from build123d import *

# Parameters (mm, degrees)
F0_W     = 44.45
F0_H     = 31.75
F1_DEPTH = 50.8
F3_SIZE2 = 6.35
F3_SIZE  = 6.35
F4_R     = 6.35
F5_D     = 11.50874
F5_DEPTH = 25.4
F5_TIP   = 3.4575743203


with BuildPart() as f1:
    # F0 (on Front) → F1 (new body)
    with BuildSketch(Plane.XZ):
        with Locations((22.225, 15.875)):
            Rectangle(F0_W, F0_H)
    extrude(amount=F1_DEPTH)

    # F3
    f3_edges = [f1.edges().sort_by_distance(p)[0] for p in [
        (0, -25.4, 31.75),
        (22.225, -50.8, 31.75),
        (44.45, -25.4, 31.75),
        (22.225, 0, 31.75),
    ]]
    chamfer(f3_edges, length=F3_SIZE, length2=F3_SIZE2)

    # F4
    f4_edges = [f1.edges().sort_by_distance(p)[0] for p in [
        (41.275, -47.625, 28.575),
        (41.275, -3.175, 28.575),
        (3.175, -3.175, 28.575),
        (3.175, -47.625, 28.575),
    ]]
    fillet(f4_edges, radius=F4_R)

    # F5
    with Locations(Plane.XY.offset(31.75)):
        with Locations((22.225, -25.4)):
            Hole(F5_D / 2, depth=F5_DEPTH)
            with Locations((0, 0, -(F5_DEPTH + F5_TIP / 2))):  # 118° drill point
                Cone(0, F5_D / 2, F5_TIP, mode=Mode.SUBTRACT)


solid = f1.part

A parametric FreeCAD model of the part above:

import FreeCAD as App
import Part
import Sketcher
from FreeCAD import Vector
Q = App.Units.Quantity


def edges_at(feature, points):
    """Names of the edges that pass closest to the given points."""
    edges = feature.Shape.Edges
    near = lambda p: min(range(len(edges)), key=lambda i: edges[i].distToShape(Part.Vertex(*p))[0])
    return sorted({f"Edge{near(p) + 1}" for p in points})

doc = App.newDocument("Part")
body = doc.addObject("PartDesign::Body", "Body")

sketch1 = body.newObject("Sketcher::SketchObject", "Sketch")
sketch1.AttachmentSupport = (doc.getObject("XZ_Plane"), [""])
sketch1.MapMode = "FlatFace"
sketch1.addGeometry(Part.LineSegment(Vector(0, 32, 0), Vector(0, 0, 0)), False)
sketch1.addGeometry(Part.LineSegment(Vector(0, 0, 0), Vector(44, 0, 0)), False)
sketch1.addGeometry(Part.LineSegment(Vector(44, 0, 0), Vector(44, 32, 0)), False)
sketch1.addGeometry(Part.LineSegment(Vector(44, 32, 0), Vector(0, 32, 0)), False)
sketch1.addConstraint(Sketcher.Constraint("Coincident", 0, 2, 1, 1))
sketch1.addConstraint(Sketcher.Constraint("Coincident", 1, 2, 2, 1))
sketch1.addConstraint(Sketcher.Constraint("Coincident", 2, 2, 3, 1))
sketch1.addConstraint(Sketcher.Constraint("Coincident", 3, 2, 0, 1))
sketch1.addConstraint(Sketcher.Constraint("Vertical", 0))
sketch1.addConstraint(Sketcher.Constraint("Horizontal", 1))
sketch1.addConstraint(Sketcher.Constraint("Vertical", 2))
sketch1.addConstraint(Sketcher.Constraint("Horizontal", 3))
sketch1.addConstraint(Sketcher.Constraint("Coincident", 0, 2, -1, 1))
sketch1.addConstraint(Sketcher.Constraint("DistanceX", 1, 1, 1, 2, Q("1.75 in")))
sketch1.addConstraint(Sketcher.Constraint("DistanceY", 0, 2, 0, 1, Q("1.25 in")))
pad1 = body.newObject("PartDesign::Pad", "Pad")
pad1.Profile = sketch1
pad1.Length = Q("2 in")
doc.recompute()

chamfer = body.newObject("PartDesign::Chamfer", "Chamfer")
chamfer.Base = (pad1, edges_at(pad1, [
    (0, -25.4, 31.75),
    (22.225, -50.8, 31.75),
    (44.45, -25.4, 31.75),
    (22.225, 0, 31.75),
]))
chamfer.ChamferType = "Two distances"
chamfer.Size = Q("0.25 in")
chamfer.Size2 = Q("0.25 in")
doc.recompute()

fillet = body.newObject("PartDesign::Fillet", "Fillet")
fillet.Base = (chamfer, edges_at(chamfer, [
    (41.275, -47.625, 28.575),
    (41.275, -3.175, 28.575),
    (3.175, -3.175, 28.575),
    (3.175, -47.625, 28.575),
]))
fillet.Radius = Q("0.25 in")

sketch2 = body.newObject("Sketcher::SketchObject", "Sketch001")
sketch2.AttachmentSupport = (doc.getObject("XY_Plane"), [""])
sketch2.MapMode = "FlatFace"
sketch2.AttachmentOffset = App.Placement(Vector(0, 0, 1.25 * 25.4), App.Rotation())
sketch2.addGeometry(Part.Circle(Vector(22, -25, 0), Vector(0, 0, 1), 6), False)
sketch2.addConstraint(Sketcher.Constraint("DistanceY", 0, 3, -1, 1, Q("1 in")))
sketch2.addConstraint(Sketcher.Constraint("Diameter", 0, Q("0.4531 in")))
sketch2.addConstraint(Sketcher.Constraint("DistanceX", -1, 1, 0, 3, Q("0.875 in")))
doc.recompute()
hole = body.newObject("PartDesign::Hole", "Hole")
hole.Profile = sketch2
hole.ThreadType = "None"
hole.Diameter = Q("0.4531 in")
hole.DepthType = "Dimension"
hole.Depth = Q("1 in")
hole.DrillPoint = "Angled"
hole.DrillPointAngle = 118

doc.recompute()
